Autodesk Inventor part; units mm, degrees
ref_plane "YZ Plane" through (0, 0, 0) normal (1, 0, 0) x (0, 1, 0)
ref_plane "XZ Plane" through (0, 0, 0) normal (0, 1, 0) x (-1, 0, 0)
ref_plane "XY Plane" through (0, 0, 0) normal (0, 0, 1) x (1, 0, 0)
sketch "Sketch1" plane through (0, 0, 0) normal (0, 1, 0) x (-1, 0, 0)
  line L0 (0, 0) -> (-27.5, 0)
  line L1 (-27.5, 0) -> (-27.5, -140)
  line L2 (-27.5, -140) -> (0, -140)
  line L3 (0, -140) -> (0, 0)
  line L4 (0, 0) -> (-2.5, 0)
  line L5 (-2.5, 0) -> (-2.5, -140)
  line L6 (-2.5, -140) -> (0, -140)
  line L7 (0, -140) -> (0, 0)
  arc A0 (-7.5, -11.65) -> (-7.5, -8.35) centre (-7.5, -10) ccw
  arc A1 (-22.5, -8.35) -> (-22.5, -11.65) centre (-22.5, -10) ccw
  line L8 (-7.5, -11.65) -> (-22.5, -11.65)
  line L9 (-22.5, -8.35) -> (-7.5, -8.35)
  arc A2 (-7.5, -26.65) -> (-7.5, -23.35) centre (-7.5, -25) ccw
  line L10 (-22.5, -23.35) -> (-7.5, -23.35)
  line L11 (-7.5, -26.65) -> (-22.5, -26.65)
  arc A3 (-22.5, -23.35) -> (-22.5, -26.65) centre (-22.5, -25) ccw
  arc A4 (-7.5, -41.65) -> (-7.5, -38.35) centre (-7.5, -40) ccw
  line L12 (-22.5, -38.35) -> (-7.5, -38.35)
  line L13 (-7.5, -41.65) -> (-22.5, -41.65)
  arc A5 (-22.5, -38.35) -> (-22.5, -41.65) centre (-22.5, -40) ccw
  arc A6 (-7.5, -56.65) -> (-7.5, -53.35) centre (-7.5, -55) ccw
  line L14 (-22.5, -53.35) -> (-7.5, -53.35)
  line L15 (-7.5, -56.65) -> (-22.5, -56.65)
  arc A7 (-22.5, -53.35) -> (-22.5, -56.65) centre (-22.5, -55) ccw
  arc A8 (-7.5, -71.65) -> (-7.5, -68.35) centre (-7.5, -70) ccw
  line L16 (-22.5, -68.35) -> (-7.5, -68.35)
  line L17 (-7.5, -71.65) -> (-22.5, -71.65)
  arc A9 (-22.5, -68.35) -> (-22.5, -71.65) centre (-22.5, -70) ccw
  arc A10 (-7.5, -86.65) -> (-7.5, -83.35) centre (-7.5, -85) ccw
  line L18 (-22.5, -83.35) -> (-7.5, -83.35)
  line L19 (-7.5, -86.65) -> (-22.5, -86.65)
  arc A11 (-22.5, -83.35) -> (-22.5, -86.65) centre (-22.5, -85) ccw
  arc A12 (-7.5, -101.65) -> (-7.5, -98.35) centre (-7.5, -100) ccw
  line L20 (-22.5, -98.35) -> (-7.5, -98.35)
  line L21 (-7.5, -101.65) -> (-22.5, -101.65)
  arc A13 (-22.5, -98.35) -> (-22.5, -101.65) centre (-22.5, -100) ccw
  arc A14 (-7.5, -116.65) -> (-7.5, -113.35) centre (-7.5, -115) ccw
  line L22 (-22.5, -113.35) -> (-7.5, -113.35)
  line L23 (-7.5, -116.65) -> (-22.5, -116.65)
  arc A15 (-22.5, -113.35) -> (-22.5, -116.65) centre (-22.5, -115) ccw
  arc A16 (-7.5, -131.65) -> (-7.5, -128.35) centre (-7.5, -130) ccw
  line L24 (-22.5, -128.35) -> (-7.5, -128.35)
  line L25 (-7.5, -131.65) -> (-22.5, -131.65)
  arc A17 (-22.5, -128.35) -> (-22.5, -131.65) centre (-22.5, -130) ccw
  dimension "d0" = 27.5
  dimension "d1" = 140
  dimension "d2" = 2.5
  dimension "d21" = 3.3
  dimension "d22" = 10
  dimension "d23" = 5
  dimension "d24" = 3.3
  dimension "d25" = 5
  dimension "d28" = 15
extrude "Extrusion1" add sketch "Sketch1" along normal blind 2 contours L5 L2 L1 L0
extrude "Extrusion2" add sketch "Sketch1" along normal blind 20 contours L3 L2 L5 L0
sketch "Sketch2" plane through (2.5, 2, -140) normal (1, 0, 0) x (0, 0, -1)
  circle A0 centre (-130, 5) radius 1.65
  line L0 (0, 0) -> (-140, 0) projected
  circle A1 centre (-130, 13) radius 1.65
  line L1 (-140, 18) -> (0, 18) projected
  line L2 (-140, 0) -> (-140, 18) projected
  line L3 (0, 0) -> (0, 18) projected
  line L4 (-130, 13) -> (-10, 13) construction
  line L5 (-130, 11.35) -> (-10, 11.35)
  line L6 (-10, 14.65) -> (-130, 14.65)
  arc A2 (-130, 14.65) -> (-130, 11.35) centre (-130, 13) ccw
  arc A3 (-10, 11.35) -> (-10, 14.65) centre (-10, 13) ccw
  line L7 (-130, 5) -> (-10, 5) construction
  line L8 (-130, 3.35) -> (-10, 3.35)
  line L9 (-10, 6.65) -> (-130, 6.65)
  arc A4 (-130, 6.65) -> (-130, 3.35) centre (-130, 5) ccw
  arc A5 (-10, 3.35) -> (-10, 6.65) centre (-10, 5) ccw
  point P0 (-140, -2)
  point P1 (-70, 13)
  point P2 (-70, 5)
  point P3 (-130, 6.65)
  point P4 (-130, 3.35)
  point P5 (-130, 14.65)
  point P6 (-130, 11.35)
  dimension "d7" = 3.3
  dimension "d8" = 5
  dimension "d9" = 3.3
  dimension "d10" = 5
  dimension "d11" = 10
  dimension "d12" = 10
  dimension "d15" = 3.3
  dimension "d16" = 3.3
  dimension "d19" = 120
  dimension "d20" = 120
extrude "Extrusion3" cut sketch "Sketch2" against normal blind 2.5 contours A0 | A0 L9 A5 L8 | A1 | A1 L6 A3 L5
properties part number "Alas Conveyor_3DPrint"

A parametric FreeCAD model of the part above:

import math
import FreeCAD as App
import Part
import Sketcher
from FreeCAD import Vector
Q = App.Units.Quantity


def add_polygon(sketch, points):
    """Adds a closed chain of lines whose ends are joined by coincident constraints."""
    first, n = sketch.GeometryCount, len(points)
    for a, b in zip(points, points[1:] + points[:1]):
        sketch.addGeometry(Part.LineSegment(App.Vector(*a, 0), App.Vector(*b, 0)), False)
    for i in range(n):
        sketch.addConstraint(Sketcher.Constraint("Coincident", first + i, 2, first + (i + 1) % n, 1))

doc = App.newDocument("Part")
body = doc.addObject("PartDesign::Body", "Body")

sketch1 = body.newObject("Sketcher::SketchObject", "Sketch")
sketch1.AttachmentSupport = (doc.getObject("XZ_Plane"), [""])
sketch1.MapMode = "FlatFace"
add_polygon(sketch1, [(2.5, -140), (2.5, 0), (27.5, 0), (27.5, -140)])
sketch1.addGeometry(Part.ArcOfCircle(Part.Circle(Vector(7.5, -130, 0), Vector(0, 0, 1), 1.7), math.radians(90), math.radians(270)), False)
sketch1.addGeometry(Part.LineSegment(Vector(7.5, -131.7, 0), Vector(22.5, -131.7, 0)), False)
sketch1.addGeometry(Part.ArcOfCircle(Part.Circle(Vector(22.5, -130, 0), Vector(0, 0, 1), 1.7), math.radians(-90), math.radians(90)), False)
sketch1.addGeometry(Part.LineSegment(Vector(22.5, -128.3, 0), Vector(7.5, -128.3, 0)), False)
sketch1.addGeometry(Part.ArcOfCircle(Part.Circle(Vector(7.5, -115, 0), Vector(0, 0, 1), 1.7), math.radians(90), math.radians(270)), False)
sketch1.addGeometry(Part.LineSegment(Vector(7.5, -116.7, 0), Vector(22.5, -116.7, 0)), False)
sketch1.addGeometry(Part.ArcOfCircle(Part.Circle(Vector(22.5, -115, 0), Vector(0, 0, 1), 1.7), math.radians(-90), math.radians(90)), False)
sketch1.addGeometry(Part.LineSegment(Vector(22.5, -113.3, 0), Vector(7.5, -113.3, 0)), False)
sketch1.addGeometry(Part.ArcOfCircle(Part.Circle(Vector(7.5, -100, 0), Vector(0, 0, 1), 1.7), math.radians(90), math.radians(270)), False)
sketch1.addGeometry(Part.LineSegment(Vector(7.5, -101.7, 0), Vector(22.5, -101.7, 0)), False)
sketch1.addGeometry(Part.ArcOfCircle(Part.Circle(Vector(22.5, -100, 0), Vector(0, 0, 1), 1.7), math.radians(-90), math.radians(90)), False)
sketch1.addGeometry(Part.LineSegment(Vector(22.5, -98.3, 0), Vector(7.5, -98.3, 0)), False)
sketch1.addGeometry(Part.ArcOfCircle(Part.Circle(Vector(7.5, -85, 0), Vector(0, 0, 1), 1.7), math.radians(90), math.radians(270)), False)
sketch1.addGeometry(Part.LineSegment(Vector(7.5, -86.7, 0), Vector(22.5, -86.7, 0)), False)
sketch1.addGeometry(Part.ArcOfCircle(Part.Circle(Vector(22.5, -85, 0), Vector(0, 0, 1), 1.7), math.radians(-90), math.radians(90)), False)
sketch1.addGeometry(Part.LineSegment(Vector(22.5, -83.3, 0), Vector(7.5, -83.3, 0)), False)
sketch1.addGeometry(Part.ArcOfCircle(Part.Circle(Vector(7.5, -70, 0), Vector(0, 0, 1), 1.7), math.radians(90), math.radians(270)), False)
sketch1.addGeometry(Part.LineSegment(Vector(7.5, -71.7, 0), Vector(22.5, -71.7, 0)), False)
sketch1.addGeometry(Part.ArcOfCircle(Part.Circle(Vector(22.5, -70, 0), Vector(0, 0, 1), 1.7), math.radians(-90), math.radians(90)), False)
sketch1.addGeometry(Part.LineSegment(Vector(22.5, -68.3, 0), Vector(7.5, -68.3, 0)), False)
sketch1.addGeometry(Part.ArcOfCircle(Part.Circle(Vector(7.5, -55, 0), Vector(0, 0, 1), 1.6), math.radians(90), math.radians(270)), False)
sketch1.addGeometry(Part.LineSegment(Vector(7.5, -56.6, 0), Vector(22.5, -56.6, 0)), False)
sketch1.addGeometry(Part.ArcOfCircle(Part.Circle(Vector(22.5, -55, 0), Vector(0, 0, 1), 1.6), math.radians(-90), math.radians(90)), False)
sketch1.addGeometry(Part.LineSegment(Vector(22.5, -53.4, 0), Vector(7.5, -53.4, 0)), False)
sketch1.addGeometry(Part.ArcOfCircle(Part.Circle(Vector(7.5, -40, 0), Vector(0, 0, 1), 1.6), math.radians(90), math.radians(270)), False)
sketch1.addGeometry(Part.LineSegment(Vector(7.5, -41.6, 0), Vector(22.5, -41.6, 0)), False)
sketch1.addGeometry(Part.ArcOfCircle(Part.Circle(Vector(22.5, -40, 0), Vector(0, 0, 1), 1.6), math.radians(-90), math.radians(90)), False)
sketch1.addGeometry(Part.LineSegment(Vector(22.5, -38.4, 0), Vector(7.5, -38.4, 0)), False)
sketch1.addGeometry(Part.ArcOfCircle(Part.Circle(Vector(7.5, -25, 0), Vector(0, 0, 1), 1.6), math.radians(90), math.radians(270)), False)
sketch1.addGeometry(Part.LineSegment(Vector(7.5, -26.6, 0), Vector(22.5, -26.6, 0)), False)
sketch1.addGeometry(Part.ArcOfCircle(Part.Circle(Vector(22.5, -25, 0), Vector(0, 0, 1), 1.6), math.radians(-90), math.radians(90)), False)
sketch1.addGeometry(Part.LineSegment(Vector(22.5, -23.4, 0), Vector(7.5, -23.4, 0)), False)
sketch1.addGeometry(Part.ArcOfCircle(Part.Circle(Vector(7.5, -10, 0), Vector(0, 0, 1), 1.7), math.radians(90), math.radians(270)), False)
sketch1.addGeometry(Part.LineSegment(Vector(7.5, -11.7, 0), Vector(22.5, -11.7, 0)), False)
sketch1.addGeometry(Part.ArcOfCircle(Part.Circle(Vector(22.5, -10, 0), Vector(0, 0, 1), 1.7), math.radians(-90), math.radians(90)), False)
sketch1.addGeometry(Part.LineSegment(Vector(22.5, -8.3, 0), Vector(7.5, -8.3, 0)), False)
sketch1.addConstraint([
    Sketcher.Constraint("Tangent", 4, 2, 5, 1),
    Sketcher.Constraint("Tangent", 5, 2, 6, 1),
    Sketcher.Constraint("Tangent", 6, 2, 7, 1),
    Sketcher.Constraint("Tangent", 7, 2, 4, 1),
    Sketcher.Constraint("Tangent", 8, 2, 9, 1),
    Sketcher.Constraint("Tangent", 9, 2, 10, 1),
    Sketcher.Constraint("Tangent", 10, 2, 11, 1),
    Sketcher.Constraint("Tangent", 11, 2, 8, 1),
    Sketcher.Constraint("Tangent", 12, 2, 13, 1),
    Sketcher.Constraint("Tangent", 13, 2, 14, 1),
    Sketcher.Constraint("Tangent", 14, 2, 15, 1),
    Sketcher.Constraint("Tangent", 15, 2, 12, 1),
    Sketcher.Constraint("Tangent", 16, 2, 17, 1),
    Sketcher.Constraint("Tangent", 17, 2, 18, 1),
    Sketcher.Constraint("Tangent", 18, 2, 19, 1),
    Sketcher.Constraint("Tangent", 19, 2, 16, 1),
    Sketcher.Constraint("Tangent", 20, 2, 21, 1),
    Sketcher.Constraint("Tangent", 21, 2, 22, 1),
    Sketcher.Constraint("Tangent", 22, 2, 23, 1),
    Sketcher.Constraint("Tangent", 23, 2, 20, 1),
    Sketcher.Constraint("Tangent", 24, 2, 25, 1),
    Sketcher.Constraint("Tangent", 25, 2, 26, 1),
    Sketcher.Constraint("Tangent", 26, 2, 27, 1),
    Sketcher.Constraint("Tangent", 27, 2, 24, 1),
    Sketcher.Constraint("Tangent", 28, 2, 29, 1),
    Sketcher.Constraint("Tangent", 29, 2, 30, 1),
    Sketcher.Constraint("Tangent", 30, 2, 31, 1),
    Sketcher.Constraint("Tangent", 31, 2, 28, 1),
    Sketcher.Constraint("Tangent", 32, 2, 33, 1),
    Sketcher.Constraint("Tangent", 33, 2, 34, 1),
    Sketcher.Constraint("Tangent", 34, 2, 35, 1),
    Sketcher.Constraint("Tangent", 35, 2, 32, 1),
    Sketcher.Constraint("Tangent", 36, 2, 37, 1),
    Sketcher.Constraint("Tangent", 37, 2, 38, 1),
    Sketcher.Constraint("Tangent", 38, 2, 39, 1),
    Sketcher.Constraint("Tangent", 39, 2, 36, 1),
    Sketcher.Constraint("Vertical", 0),
    Sketcher.Constraint("Horizontal", 1),
    Sketcher.Constraint("Vertical", 2),
    Sketcher.Constraint("Horizontal", 3),
    Sketcher.Constraint("Horizontal", 5),
    Sketcher.Constraint("Horizontal", 7),
    Sketcher.Constraint("Horizontal", 9),
    Sketcher.Constraint("Horizontal", 11),
    Sketcher.Constraint("Horizontal", 13),
    Sketcher.Constraint("Horizontal", 15),
    Sketcher.Constraint("Horizontal", 17),
    Sketcher.Constraint("Horizontal", 19),
    Sketcher.Constraint("Horizontal", 21),
    Sketcher.Constraint("Horizontal", 23),
    Sketcher.Constraint("Horizontal", 25),
    Sketcher.Constraint("Horizontal", 27),
    Sketcher.Constraint("Horizontal", 29),
    Sketcher.Constraint("Horizontal", 31),
    Sketcher.Constraint("Horizontal", 33),
    Sketcher.Constraint("Horizontal", 35),
    Sketcher.Constraint("Horizontal", 37),
    Sketcher.Constraint("Horizontal", 39),
    Sketcher.Constraint("Equal", 6, 8),
    Sketcher.Constraint("Equal", 10, 12),
    Sketcher.Constraint("Equal", 14, 16),
    Sketcher.Constraint("Equal", 18, 20),
    Sketcher.Constraint("Equal", 22, 24),
    Sketcher.Constraint("Equal", 26, 28),
    Sketcher.Constraint("Equal", 30, 32),
    Sketcher.Constraint("Equal", 34, 36),
    Sketcher.Constraint("PointOnObject", 0, 2, -1),
    Sketcher.Constraint("Vertical", 4, 3, 8, 3),
    Sketcher.Constraint("Vertical", 6, 3, 10, 3),
    Sketcher.Constraint("Vertical", 8, 3, 12, 3),
    Sketcher.Constraint("Vertical", 10, 3, 14, 3),
    Sketcher.Constraint("Vertical", 12, 3, 16, 3),
    Sketcher.Constraint("Vertical", 14, 3, 18, 3),
    Sketcher.Constraint("Vertical", 16, 3, 20, 3),
    Sketcher.Constraint("Vertical", 18, 3, 22, 3),
    Sketcher.Constraint("Vertical", 20, 3, 24, 3),
    Sketcher.Constraint("Vertical", 22, 3, 26, 3),
    Sketcher.Constraint("Vertical", 24, 3, 28, 3),
    Sketcher.Constraint("Vertical", 26, 3, 30, 3),
    Sketcher.Constraint("Vertical", 28, 3, 32, 3),
    Sketcher.Constraint("Vertical", 30, 3, 34, 3),
    Sketcher.Constraint("Vertical", 32, 3, 36, 3),
    Sketcher.Constraint("Vertical", 34, 3, 38, 3),
    Sketcher.Constraint("DistanceX", 5, 1, 5, 2, Q("15 mm")),
    Sketcher.Constraint("DistanceY", 0, 1, 0, 2, Q("140 mm")),
    Sketcher.Constraint("Radius", 4, Q("1.65 mm")),
    Sketcher.Constraint("DistanceY", 36, 3, -1, 1, Q("10 mm")),
    Sketcher.Constraint("DistanceY", 4, 3, 8, 3, Q("15 mm")),
    Sketcher.Constraint("DistanceY", 8, 3, 12, 3, Q("15 mm")),
    Sketcher.Constraint("DistanceY", 12, 3, 16, 3, Q("15 mm")),
    Sketcher.Constraint("DistanceY", 16, 3, 20, 3, Q("15 mm")),
    Sketcher.Constraint("DistanceY", 20, 3, 24, 3, Q("15 mm")),
    Sketcher.Constraint("DistanceY", 24, 3, 28, 3, Q("15 mm")),
    Sketcher.Constraint("DistanceY", 28, 3, 32, 3, Q("15 mm")),
    Sketcher.Constraint("DistanceY", 32, 3, 36, 3, Q("15 mm")),
    Sketcher.Constraint("DistanceX", 0, 2, 36, 3, Q("5 mm")),
    Sketcher.Constraint("DistanceX", 38, 3, 1, 2, Q("5 mm")),
    Sketcher.Constraint("DistanceX", -1, 1, 0, 2, Q("2.5 mm")),
])
pad1 = body.newObject("PartDesign::Pad", "Pad")
pad1.Profile = sketch1
pad1.Length = 2
pad1.Reversed = True

sketch2 = body.newObject("Sketcher::SketchObject", "Sketch001")
sketch2.AttachmentSupport = (doc.getObject("XZ_Plane"), [""])
sketch2.MapMode = "FlatFace"
add_polygon(sketch2, [(0, -140), (0, 0), (2.5, 0), (2.5, -140)])
sketch2.addConstraint([
    Sketcher.Constraint("Vertical", 0),
    Sketcher.Constraint("Horizontal", 1),
    Sketcher.Constraint("Vertical", 2),
    Sketcher.Constraint("Horizontal", 3),
    Sketcher.Constraint("Coincident", 0, 2, -1, 1),
    Sketcher.Constraint("DistanceY", 0, 1, 0, 2, Q("140 mm")),
    Sketcher.Constraint("DistanceX", 1, 1, 1, 2, Q("2.5 mm")),
])
pad2 = body.newObject("PartDesign::Pad", "Pad001")
pad2.Profile = sketch2
pad2.Length = 20
pad2.Reversed = True

sketch3 = body.newObject("Sketcher::SketchObject", "Sketch002")
sketch3.AttachmentSupport = (doc.getObject("YZ_Plane"), [""])
sketch3.MapMode = "FlatFace"
sketch3.AttachmentOffset = App.Placement(Vector(0, 0, 2.5), App.Rotation())
sketch3.addGeometry([
    Part.ArcOfCircle(Part.Circle(Vector(7, -10, 0), Vector(0, 0, 1), 1.6), math.radians(0), math.radians(180)),
    Part.LineSegment(Vector(5.3, -10, 0), Vector(5.3, -130, 0)),
    Part.ArcOfCircle(Part.Circle(Vector(7, -130, 0), Vector(0, 0, 1), 1.6), math.radians(180), math.radians(360)),
    Part.LineSegment(Vector(8.7, -130, 0), Vector(8.7, -10, 0)),
    Part.ArcOfCircle(Part.Circle(Vector(15, -10, 0), Vector(0, 0, 1), 1.6), math.radians(0), math.radians(180)),
    Part.LineSegment(Vector(13.3, -10, 0), Vector(13.3, -130, 0)),
    Part.ArcOfCircle(Part.Circle(Vector(15, -130, 0), Vector(0, 0, 1), 1.7), math.radians(180), math.radians(360)),
    Part.LineSegment(Vector(16.6, -130, 0), Vector(16.6, -10, 0)),
], False)
sketch3.addConstraint([
    Sketcher.Constraint("Tangent", 0, 2, 1, 1),
    Sketcher.Constraint("Tangent", 1, 2, 2, 1),
    Sketcher.Constraint("Tangent", 2, 2, 3, 1),
    Sketcher.Constraint("Tangent", 3, 2, 0, 1),
    Sketcher.Constraint("Tangent", 4, 2, 5, 1),
    Sketcher.Constraint("Tangent", 5, 2, 6, 1),
    Sketcher.Constraint("Tangent", 6, 2, 7, 1),
    Sketcher.Constraint("Tangent", 7, 2, 4, 1),
    Sketcher.Constraint("Vertical", 1),
    Sketcher.Constraint("Vertical", 3),
    Sketcher.Constraint("Vertical", 5),
    Sketcher.Constraint("Vertical", 7),
    Sketcher.Constraint("Equal", 2, 4),
    Sketcher.Constraint("Horizontal", 0, 3, 4, 3),
    Sketcher.Constraint("Horizontal", 2, 3, 6, 3),
    Sketcher.Constraint("DistanceY", 1, 2, 1, 1, Q("120 mm")),
    Sketcher.Constraint("Radius", 0, Q("1.65 mm")),
    Sketcher.Constraint("DistanceY", 0, 3, -1, 1, Q("10 mm")),
    Sketcher.Constraint("DistanceX", -1, 1, 0, 3, Q("7 mm")),
    Sketcher.Constraint("DistanceX", -1, 1, 4, 3, Q("15 mm")),
])
pocket1 = body.newObject("PartDesign::Pocket", "Pocket")
pocket1.Profile = sketch3
pocket1.Length = 2.5

doc.recompute()
